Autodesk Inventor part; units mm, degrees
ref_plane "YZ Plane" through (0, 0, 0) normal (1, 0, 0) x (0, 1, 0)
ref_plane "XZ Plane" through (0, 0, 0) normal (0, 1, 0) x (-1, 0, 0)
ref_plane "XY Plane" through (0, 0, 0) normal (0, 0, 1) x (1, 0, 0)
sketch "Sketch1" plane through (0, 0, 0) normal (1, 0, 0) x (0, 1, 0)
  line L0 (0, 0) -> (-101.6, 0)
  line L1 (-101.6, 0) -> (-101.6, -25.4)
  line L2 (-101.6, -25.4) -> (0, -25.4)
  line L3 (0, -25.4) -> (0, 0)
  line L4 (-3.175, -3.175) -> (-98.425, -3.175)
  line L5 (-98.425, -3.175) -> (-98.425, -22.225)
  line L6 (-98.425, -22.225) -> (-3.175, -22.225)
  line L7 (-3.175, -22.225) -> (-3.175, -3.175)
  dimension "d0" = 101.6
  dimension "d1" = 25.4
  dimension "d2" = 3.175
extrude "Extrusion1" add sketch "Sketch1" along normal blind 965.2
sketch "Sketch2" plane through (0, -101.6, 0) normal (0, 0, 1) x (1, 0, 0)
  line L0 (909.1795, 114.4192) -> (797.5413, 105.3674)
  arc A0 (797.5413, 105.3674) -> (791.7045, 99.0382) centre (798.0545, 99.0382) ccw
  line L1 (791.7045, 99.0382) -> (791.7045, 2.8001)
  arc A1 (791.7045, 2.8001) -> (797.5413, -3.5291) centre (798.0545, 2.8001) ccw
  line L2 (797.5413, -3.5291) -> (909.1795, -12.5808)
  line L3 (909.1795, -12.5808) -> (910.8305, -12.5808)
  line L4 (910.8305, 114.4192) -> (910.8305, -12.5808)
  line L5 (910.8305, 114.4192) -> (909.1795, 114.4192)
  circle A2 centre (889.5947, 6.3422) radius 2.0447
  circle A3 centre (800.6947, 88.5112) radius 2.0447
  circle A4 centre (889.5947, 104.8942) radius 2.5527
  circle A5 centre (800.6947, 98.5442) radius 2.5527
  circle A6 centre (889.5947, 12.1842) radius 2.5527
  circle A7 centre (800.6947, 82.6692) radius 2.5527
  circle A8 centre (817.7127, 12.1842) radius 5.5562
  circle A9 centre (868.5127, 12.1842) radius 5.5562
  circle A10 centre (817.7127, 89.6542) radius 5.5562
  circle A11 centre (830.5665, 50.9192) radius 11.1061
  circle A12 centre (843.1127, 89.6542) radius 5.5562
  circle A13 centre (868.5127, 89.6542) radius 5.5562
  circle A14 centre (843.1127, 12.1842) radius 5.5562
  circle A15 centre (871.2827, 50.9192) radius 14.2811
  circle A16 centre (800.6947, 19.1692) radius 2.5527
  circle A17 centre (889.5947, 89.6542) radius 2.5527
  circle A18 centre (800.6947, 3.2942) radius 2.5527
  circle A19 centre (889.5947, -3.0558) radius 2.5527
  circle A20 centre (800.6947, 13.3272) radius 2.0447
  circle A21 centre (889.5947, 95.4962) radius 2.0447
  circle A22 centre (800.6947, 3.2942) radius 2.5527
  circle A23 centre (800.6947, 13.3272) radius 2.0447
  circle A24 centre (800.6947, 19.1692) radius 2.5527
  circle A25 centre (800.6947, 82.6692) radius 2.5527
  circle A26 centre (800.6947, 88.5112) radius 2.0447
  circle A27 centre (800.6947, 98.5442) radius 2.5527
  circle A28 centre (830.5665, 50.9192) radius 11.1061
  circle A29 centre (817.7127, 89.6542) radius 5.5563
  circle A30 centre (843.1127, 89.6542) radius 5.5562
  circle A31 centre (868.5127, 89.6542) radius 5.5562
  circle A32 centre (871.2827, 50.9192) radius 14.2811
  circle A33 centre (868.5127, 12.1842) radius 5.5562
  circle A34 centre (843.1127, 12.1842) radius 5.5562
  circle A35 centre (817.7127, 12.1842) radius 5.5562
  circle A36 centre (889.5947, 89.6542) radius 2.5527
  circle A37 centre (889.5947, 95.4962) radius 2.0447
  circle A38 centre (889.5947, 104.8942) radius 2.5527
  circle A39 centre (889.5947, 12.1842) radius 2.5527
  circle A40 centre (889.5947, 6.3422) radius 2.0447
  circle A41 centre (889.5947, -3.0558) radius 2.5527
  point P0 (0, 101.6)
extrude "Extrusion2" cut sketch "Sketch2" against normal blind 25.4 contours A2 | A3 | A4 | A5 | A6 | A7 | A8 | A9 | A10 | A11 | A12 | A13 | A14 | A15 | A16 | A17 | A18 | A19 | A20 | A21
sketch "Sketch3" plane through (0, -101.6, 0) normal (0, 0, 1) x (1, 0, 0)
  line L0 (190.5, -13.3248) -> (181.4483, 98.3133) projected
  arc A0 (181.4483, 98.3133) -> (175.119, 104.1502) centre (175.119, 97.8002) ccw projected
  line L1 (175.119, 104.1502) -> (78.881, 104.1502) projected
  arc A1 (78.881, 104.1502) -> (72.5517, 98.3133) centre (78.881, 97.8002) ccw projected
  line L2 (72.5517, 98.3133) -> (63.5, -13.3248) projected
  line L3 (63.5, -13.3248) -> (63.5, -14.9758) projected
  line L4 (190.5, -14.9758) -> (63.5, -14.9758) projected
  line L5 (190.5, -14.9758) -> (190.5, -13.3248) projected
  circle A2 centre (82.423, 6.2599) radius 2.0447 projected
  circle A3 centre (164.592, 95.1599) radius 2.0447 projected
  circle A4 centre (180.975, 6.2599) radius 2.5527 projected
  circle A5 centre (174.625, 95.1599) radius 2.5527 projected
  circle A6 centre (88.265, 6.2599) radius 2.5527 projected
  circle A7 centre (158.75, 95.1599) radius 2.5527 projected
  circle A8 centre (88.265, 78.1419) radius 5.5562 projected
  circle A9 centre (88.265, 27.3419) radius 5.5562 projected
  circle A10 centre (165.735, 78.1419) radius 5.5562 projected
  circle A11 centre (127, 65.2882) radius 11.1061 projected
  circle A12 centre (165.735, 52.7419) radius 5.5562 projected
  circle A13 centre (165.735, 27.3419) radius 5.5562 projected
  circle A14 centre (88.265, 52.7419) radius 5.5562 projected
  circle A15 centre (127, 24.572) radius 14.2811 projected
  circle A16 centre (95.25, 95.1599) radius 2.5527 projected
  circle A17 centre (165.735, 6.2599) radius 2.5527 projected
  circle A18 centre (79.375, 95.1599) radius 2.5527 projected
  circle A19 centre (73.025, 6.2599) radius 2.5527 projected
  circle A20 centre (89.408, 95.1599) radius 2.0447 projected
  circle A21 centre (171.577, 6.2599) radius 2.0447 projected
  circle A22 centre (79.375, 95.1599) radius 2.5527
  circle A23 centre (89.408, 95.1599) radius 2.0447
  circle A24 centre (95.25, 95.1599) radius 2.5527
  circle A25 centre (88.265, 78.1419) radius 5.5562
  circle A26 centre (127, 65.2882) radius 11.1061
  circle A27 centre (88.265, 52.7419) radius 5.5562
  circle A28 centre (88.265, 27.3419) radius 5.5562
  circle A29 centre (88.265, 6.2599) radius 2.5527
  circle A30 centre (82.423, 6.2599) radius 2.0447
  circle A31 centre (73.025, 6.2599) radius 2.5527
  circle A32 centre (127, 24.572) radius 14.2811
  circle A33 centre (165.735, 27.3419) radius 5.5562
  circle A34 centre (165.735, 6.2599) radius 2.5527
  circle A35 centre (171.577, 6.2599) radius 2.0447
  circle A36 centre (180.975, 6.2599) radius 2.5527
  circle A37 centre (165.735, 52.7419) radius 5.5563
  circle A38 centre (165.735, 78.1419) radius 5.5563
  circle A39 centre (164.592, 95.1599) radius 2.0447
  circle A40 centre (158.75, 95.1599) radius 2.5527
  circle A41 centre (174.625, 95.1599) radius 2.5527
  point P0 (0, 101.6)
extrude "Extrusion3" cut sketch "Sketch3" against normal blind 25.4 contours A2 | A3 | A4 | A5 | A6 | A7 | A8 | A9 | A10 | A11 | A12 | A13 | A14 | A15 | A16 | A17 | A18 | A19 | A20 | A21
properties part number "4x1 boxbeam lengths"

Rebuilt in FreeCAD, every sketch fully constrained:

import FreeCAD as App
import Part
import Sketcher
from FreeCAD import Vector
Q = App.Units.Quantity


def add_polygon(sketch, points):
    """Adds a closed chain of lines whose ends are joined by coincident constraints."""
    first, n = sketch.GeometryCount, len(points)
    for a, b in zip(points, points[1:] + points[:1]):
        sketch.addGeometry(Part.LineSegment(App.Vector(*a, 0), App.Vector(*b, 0)), False)
    for i in range(n):
        sketch.addConstraint(Sketcher.Constraint("Coincident", first + i, 2, first + (i + 1) % n, 1))

doc = App.newDocument("Part")
body = doc.addObject("PartDesign::Body", "Body")

# Sketch on YZ plane
sketch1 = doc.addObject("Sketcher::SketchObject", "Sketch")
body.addObject(sketch1)
sketch1.AttachmentSupport = (doc.YZ_Plane, [""])
sketch1.MapMode = "FlatFace"
add_polygon(sketch1, [(0, -25), (0, 0), (-102, 0), (-102, -25)])  # lines 0-3
add_polygon(sketch1, [(-98, -3), (-3, -3), (-3, -22), (-98, -22)])  # lines 4-7
sketch1.addConstraint(Sketcher.Constraint("Vertical", 0))
sketch1.addConstraint(Sketcher.Constraint("Horizontal", 1))
sketch1.addConstraint(Sketcher.Constraint("Vertical", 2))
sketch1.addConstraint(Sketcher.Constraint("Horizontal", 3))
sketch1.addConstraint(Sketcher.Constraint("Horizontal", 4))
sketch1.addConstraint(Sketcher.Constraint("Vertical", 5))
sketch1.addConstraint(Sketcher.Constraint("Horizontal", 6))
sketch1.addConstraint(Sketcher.Constraint("Vertical", 7))
sketch1.addConstraint(Sketcher.Constraint("Coincident", 0, 2, -1, 1))
sketch1.addConstraint(Sketcher.Constraint("DistanceX", 1, 2, 1, 1, Q("4 in")))
sketch1.addConstraint(Sketcher.Constraint("DistanceY", 0, 1, 0, 2, Q("1 in")))
sketch1.addConstraint(Sketcher.Constraint("DistanceX", 4, 2, -1, 1, Q("0.125 in")))
sketch1.addConstraint(Sketcher.Constraint("DistanceY", 4, 2, -1, 1, Q("0.125 in")))
sketch1.addConstraint(Sketcher.Constraint("DistanceY", 3, 2, 5, 2, Q("0.125 in")))
sketch1.addConstraint(Sketcher.Constraint("DistanceX", 2, 2, 6, 2, Q("0.125 in")))
pad1 = doc.addObject("PartDesign::Pad", "Pad")
body.addObject(pad1)
pad1.Profile = sketch1
pad1.Length = Q("38 in")

# Sketch on XY plane
sketch2 = doc.addObject("Sketcher::SketchObject", "Sketch001")
body.addObject(sketch2)
sketch2.AttachmentSupport = (doc.XY_Plane, [""])
sketch2.MapMode = "FlatFace"
sketch2.addGeometry(Part.Circle(Vector(889.6, -95.3, 0), Vector(0, 0, 1), 2), False)
sketch2.addGeometry(Part.Circle(Vector(800.7, -13.1, 0), Vector(0, 0, 1), 2), False)
sketch2.addGeometry(Part.Circle(Vector(889.6, 3.3, 0), Vector(0, 0, 1), 2.6), False)
sketch2.addGeometry(Part.Circle(Vector(800.7, -3.1, 0), Vector(0, 0, 1), 2.6), False)
sketch2.addGeometry(Part.Circle(Vector(889.6, -89.4, 0), Vector(0, 0, 1), 2.6), False)
sketch2.addGeometry(Part.Circle(Vector(800.7, -18.9, 0), Vector(0, 0, 1), 2.6), False)
sketch2.addGeometry(Part.Circle(Vector(817.7, -89.4, 0), Vector(0, 0, 1), 5.6), False)
sketch2.addGeometry(Part.Circle(Vector(868.5, -89.4, 0), Vector(0, 0, 1), 5.6), False)
sketch2.addGeometry(Part.Circle(Vector(817.7, -11.9, 0), Vector(0, 0, 1), 5.6), False)
sketch2.addGeometry(Part.Circle(Vector(830.6, -50.7, 0), Vector(0, 0, 1), 11.1), False)
sketch2.addGeometry(Part.Circle(Vector(843.1, -11.9, 0), Vector(0, 0, 1), 5.6), False)
sketch2.addGeometry(Part.Circle(Vector(868.5, -11.9, 0), Vector(0, 0, 1), 5.6), False)
sketch2.addGeometry(Part.Circle(Vector(843.1, -89.4, 0), Vector(0, 0, 1), 5.6), False)
sketch2.addGeometry(Part.Circle(Vector(871.3, -50.7, 0), Vector(0, 0, 1), 14.3), False)
sketch2.addGeometry(Part.Circle(Vector(800.7, -82.4, 0), Vector(0, 0, 1), 2.6), False)
sketch2.addGeometry(Part.Circle(Vector(889.6, -11.9, 0), Vector(0, 0, 1), 2.6), False)
sketch2.addGeometry(Part.Circle(Vector(800.7, -98.3, 0), Vector(0, 0, 1), 2.6), False)
sketch2.addGeometry(Part.Circle(Vector(889.6, -104.7, 0), Vector(0, 0, 1), 2.6), False)
sketch2.addGeometry(Part.Circle(Vector(800.7, -88.3, 0), Vector(0, 0, 1), 2), False)
sketch2.addGeometry(Part.Circle(Vector(889.6, -6.1, 0), Vector(0, 0, 1), 2), False)
sketch2.addConstraint(Sketcher.Constraint("Equal", 0, 1))
sketch2.addConstraint(Sketcher.Constraint("Equal", 2, 3))
sketch2.addConstraint(Sketcher.Constraint("Equal", 3, 4))
sketch2.addConstraint(Sketcher.Constraint("Equal", 4, 5))
sketch2.addConstraint(Sketcher.Constraint("Equal", 6, 7))
sketch2.addConstraint(Sketcher.Constraint("Equal", 7, 8))
sketch2.addConstraint(Sketcher.Constraint("Equal", 8, 10))
sketch2.addConstraint(Sketcher.Constraint("Equal", 10, 11))
sketch2.addConstraint(Sketcher.Constraint("Equal", 11, 12))
sketch2.addConstraint(Sketcher.Constraint("Equal", 5, 14))
sketch2.addConstraint(Sketcher.Constraint("Equal", 14, 15))
sketch2.addConstraint(Sketcher.Constraint("Equal", 15, 16))
sketch2.addConstraint(Sketcher.Constraint("Equal", 16, 17))
sketch2.addConstraint(Sketcher.Constraint("Equal", 1, 18))
sketch2.addConstraint(Sketcher.Constraint("Equal", 18, 19))
sketch2.addConstraint(Sketcher.Constraint("Horizontal", 4, 3, 6, 3))
sketch2.addConstraint(Sketcher.Constraint("Horizontal", 6, 3, 7, 3))
sketch2.addConstraint(Sketcher.Constraint("Horizontal", 8, 3, 10, 3))
sketch2.addConstraint(Sketcher.Constraint("Horizontal", 10, 3, 11, 3))
sketch2.addConstraint(Sketcher.Constraint("Horizontal", 7, 3, 12, 3))
sketch2.addConstraint(Sketcher.Constraint("Horizontal", 9, 3, 13, 3))
sketch2.addConstraint(Sketcher.Constraint("Horizontal", 11, 3, 15, 3))
sketch2.addConstraint(Sketcher.Constraint("Vertical", 0, 3, 2, 3))
sketch2.addConstraint(Sketcher.Constraint("Vertical", 1, 3, 3, 3))
sketch2.addConstraint(Sketcher.Constraint("Vertical", 2, 3, 4, 3))
sketch2.addConstraint(Sketcher.Constraint("Vertical", 3, 3, 5, 3))
sketch2.addConstraint(Sketcher.Constraint("Vertical", 6, 3, 8, 3))
sketch2.addConstraint(Sketcher.Constraint("Vertical", 7, 3, 11, 3))
sketch2.addConstraint(Sketcher.Constraint("Vertical", 10, 3, 12, 3))
sketch2.addConstraint(Sketcher.Constraint("Vertical", 5, 3, 14, 3))
sketch2.addConstraint(Sketcher.Constraint("Vertical", 4, 3, 15, 3))
sketch2.addConstraint(Sketcher.Constraint("Vertical", 14, 3, 16, 3))
sketch2.addConstraint(Sketcher.Constraint("Vertical", 15, 3, 17, 3))
sketch2.addConstraint(Sketcher.Constraint("Vertical", 16, 3, 18, 3))
sketch2.addConstraint(Sketcher.Constraint("Vertical", 17, 3, 19, 3))
sketch2.addConstraint(Sketcher.Constraint("Diameter", 0, Q("0.161 in")))
sketch2.addConstraint(Sketcher.Constraint("Diameter", 2, Q("0.201 in")))
sketch2.addConstraint(Sketcher.Constraint("Diameter", 6, Q("0.4375 in")))
sketch2.addConstraint(Sketcher.Constraint("DistanceX", 6, 3, 7, 3, Q("2 in")))
sketch2.addConstraint(Sketcher.Constraint("DistanceX", 8, 3, 10, 3, Q("1 in")))
sketch2.addConstraint(Sketcher.Constraint("Diameter", 9, Q("0.8745 in")))
sketch2.addConstraint(Sketcher.Constraint("Diameter", 13, Q("1.1245 in")))
sketch2.addConstraint(Sketcher.Constraint("DistanceX", 1, 3, 0, 3, Q("3.5 in")))
sketch2.addConstraint(Sketcher.Constraint("DistanceY", 4, 3, 3, 3, Q("3.4 in")))
sketch2.addConstraint(Sketcher.Constraint("DistanceY", 8, 3, 2, 3, Q("0.6 in")))
sketch2.addConstraint(Sketcher.Constraint("DistanceY", 14, 3, 5, 3, Q("2.5 in")))
sketch2.addConstraint(Sketcher.Constraint("DistanceY", 17, 3, 4, 3, Q("0.6 in")))
sketch2.addConstraint(Sketcher.Constraint("DistanceY", 0, 3, 2, 3, Q("3.88 in")))
sketch2.addConstraint(Sketcher.Constraint("DistanceY", 3, 3, 2, 3, Q("0.25 in")))
sketch2.addConstraint(Sketcher.Constraint("DistanceY", 5, 3, 1, 3, Q("0.23 in")))
sketch2.addConstraint(Sketcher.Constraint("DistanceX", 6, 3, 4, 3, Q("2.83 in")))
sketch2.addConstraint(Sketcher.Constraint("DistanceY", 9, 3, 5, 3, Q("1.25 in")))
sketch2.addConstraint(Sketcher.Constraint("DistanceY", 16, 3, 6, 3, Q("0.35 in")))
sketch2.addConstraint(Sketcher.Constraint("DistanceY", 18, 3, 14, 3, Q("0.23 in")))
sketch2.addConstraint(Sketcher.Constraint("DistanceY", 15, 3, 19, 3, Q("0.23 in")))
sketch2.addConstraint(Sketcher.Constraint("DistanceY", 0, 3, 1, 3, Q("3.235 in")))
sketch2.addConstraint(Sketcher.Constraint("DistanceX", 9, 3, 13, 3, Q("1.603 in")))
sketch2.addConstraint(Sketcher.Constraint("DistanceY", 0, 3, -1, 1, Q("3.7503 in")))
sketch2.addConstraint(Sketcher.Constraint("DistanceX", -1, 1, 0, 3, Q("889.5947 mm")))
sketch2.addConstraint(Sketcher.Constraint("DistanceX", -1, 1, 9, 3, Q("830.5665 mm")))
pocket1 = doc.addObject("PartDesign::Pocket", "Pocket")
body.addObject(pocket1)
pocket1.Profile = sketch2
pocket1.Length = Q("1 in")

# Sketch on XY plane
sketch3 = doc.addObject("Sketcher::SketchObject", "Sketch002")
body.addObject(sketch3)
sketch3.AttachmentSupport = (doc.XY_Plane, [""])
sketch3.MapMode = "FlatFace"
sketch3.addGeometry(Part.Circle(Vector(82.4, -95.3, 0), Vector(0, 0, 1), 2), False)
sketch3.addGeometry(Part.Circle(Vector(164.6, -6.4, 0), Vector(0, 0, 1), 2), False)
sketch3.addGeometry(Part.Circle(Vector(181, -95.3, 0), Vector(0, 0, 1), 2.6), False)
sketch3.addGeometry(Part.Circle(Vector(174.6, -6.4, 0), Vector(0, 0, 1), 2.6), False)
sketch3.addGeometry(Part.Circle(Vector(88.3, -95.3, 0), Vector(0, 0, 1), 2.6), False)
sketch3.addGeometry(Part.Circle(Vector(158.8, -6.4, 0), Vector(0, 0, 1), 2.6), False)
sketch3.addGeometry(Part.Circle(Vector(88.3, -23.5, 0), Vector(0, 0, 1), 5.6), False)
sketch3.addGeometry(Part.Circle(Vector(88.3, -74.3, 0), Vector(0, 0, 1), 5.6), False)
sketch3.addGeometry(Part.Circle(Vector(165.7, -23.5, 0), Vector(0, 0, 1), 5.6), False)
sketch3.addGeometry(Part.Circle(Vector(127, -36.3, 0), Vector(0, 0, 1), 11.1), False)
sketch3.addGeometry(Part.Circle(Vector(165.7, -48.9, 0), Vector(0, 0, 1), 5.6), False)
sketch3.addGeometry(Part.Circle(Vector(165.7, -74.3, 0), Vector(0, 0, 1), 5.6), False)
sketch3.addGeometry(Part.Circle(Vector(88.3, -48.9, 0), Vector(0, 0, 1), 5.6), False)
sketch3.addGeometry(Part.Circle(Vector(127, -77, 0), Vector(0, 0, 1), 14.3), False)
sketch3.addGeometry(Part.Circle(Vector(95.2, -6.4, 0), Vector(0, 0, 1), 2.6), False)
sketch3.addGeometry(Part.Circle(Vector(165.7, -95.3, 0), Vector(0, 0, 1), 2.6), False)
sketch3.addGeometry(Part.Circle(Vector(79.4, -6.4, 0), Vector(0, 0, 1), 2.6), False)
sketch3.addGeometry(Part.Circle(Vector(73, -95.3, 0), Vector(0, 0, 1), 2.6), False)
sketch3.addGeometry(Part.Circle(Vector(89.4, -6.4, 0), Vector(0, 0, 1), 2), False)
sketch3.addGeometry(Part.Circle(Vector(171.6, -95.3, 0), Vector(0, 0, 1), 2), False)
sketch3.addConstraint(Sketcher.Constraint("Equal", 0, 1))
sketch3.addConstraint(Sketcher.Constraint("Equal", 2, 3))
sketch3.addConstraint(Sketcher.Constraint("Equal", 3, 4))
sketch3.addConstraint(Sketcher.Constraint("Equal", 4, 5))
sketch3.addConstraint(Sketcher.Constraint("Equal", 6, 7))
sketch3.addConstraint(Sketcher.Constraint("Equal", 7, 8))
sketch3.addConstraint(Sketcher.Constraint("Equal", 8, 10))
sketch3.addConstraint(Sketcher.Constraint("Equal", 10, 11))
sketch3.addConstraint(Sketcher.Constraint("Equal", 11, 12))
sketch3.addConstraint(Sketcher.Constraint("Equal", 5, 14))
sketch3.addConstraint(Sketcher.Constraint("Equal", 14, 15))
sketch3.addConstraint(Sketcher.Constraint("Equal", 15, 16))
sketch3.addConstraint(Sketcher.Constraint("Equal", 16, 17))
sketch3.addConstraint(Sketcher.Constraint("Equal", 1, 18))
sketch3.addConstraint(Sketcher.Constraint("Equal", 18, 19))
sketch3.addConstraint(Sketcher.Constraint("Horizontal", 0, 3, 2, 3))
sketch3.addConstraint(Sketcher.Constraint("Horizontal", 1, 3, 3, 3))
sketch3.addConstraint(Sketcher.Constraint("Horizontal", 2, 3, 4, 3))
sketch3.addConstraint(Sketcher.Constraint("Horizontal", 3, 3, 5, 3))
sketch3.addConstraint(Sketcher.Constraint("Horizontal", 6, 3, 8, 3))
sketch3.addConstraint(Sketcher.Constraint("Horizontal", 7, 3, 11, 3))
sketch3.addConstraint(Sketcher.Constraint("Horizontal", 10, 3, 12, 3))
sketch3.addConstraint(Sketcher.Constraint("Horizontal", 5, 3, 14, 3))
sketch3.addConstraint(Sketcher.Constraint("Horizontal", 4, 3, 15, 3))
sketch3.addConstraint(Sketcher.Constraint("Horizontal", 14, 3, 16, 3))
sketch3.addConstraint(Sketcher.Constraint("Horizontal", 15, 3, 17, 3))
sketch3.addConstraint(Sketcher.Constraint("Horizontal", 16, 3, 18, 3))
sketch3.addConstraint(Sketcher.Constraint("Horizontal", 17, 3, 19, 3))
sketch3.addConstraint(Sketcher.Constraint("Vertical", 4, 3, 6, 3))
sketch3.addConstraint(Sketcher.Constraint("Vertical", 6, 3, 7, 3))
sketch3.addConstraint(Sketcher.Constraint("Vertical", 8, 3, 10, 3))
sketch3.addConstraint(Sketcher.Constraint("Vertical", 10, 3, 11, 3))
sketch3.addConstraint(Sketcher.Constraint("Vertical", 7, 3, 12, 3))
sketch3.addConstraint(Sketcher.Constraint("Vertical", 9, 3, 13, 3))
sketch3.addConstraint(Sketcher.Constraint("Vertical", 11, 3, 15, 3))
sketch3.addConstraint(Sketcher.Constraint("Diameter", 0, Q("0.161 in")))
sketch3.addConstraint(Sketcher.Constraint("Diameter", 2, Q("0.201 in")))
sketch3.addConstraint(Sketcher.Constraint("Diameter", 6, Q("0.4375 in")))
sketch3.addConstraint(Sketcher.Constraint("DistanceX", -1, 1, 9, 3, Q("5 in")))
sketch3.addConstraint(Sketcher.Constraint("DistanceY", 7, 3, 6, 3, Q("2 in")))
sketch3.addConstraint(Sketcher.Constraint("DistanceY", 10, 3, 8, 3, Q("1 in")))
sketch3.addConstraint(Sketcher.Constraint("Diameter", 9, Q("0.8745 in")))
sketch3.addConstraint(Sketcher.Constraint("Diameter", 13, Q("1.1245 in")))
sketch3.addConstraint(Sketcher.Constraint("DistanceY", 0, 3, 1, 3, Q("3.5 in")))
sketch3.addConstraint(Sketcher.Constraint("DistanceX", 4, 3, 3, 3, Q("3.4 in")))
sketch3.addConstraint(Sketcher.Constraint("DistanceX", 8, 3, 2, 3, Q("0.6 in")))
sketch3.addConstraint(Sketcher.Constraint("DistanceX", 14, 3, 5, 3, Q("2.5 in")))
sketch3.addConstraint(Sketcher.Constraint("DistanceX", 17, 3, 4, 3, Q("0.6 in")))
sketch3.addConstraint(Sketcher.Constraint("DistanceX", -1, 1, 1, 3, Q("6.48 in")))
sketch3.addConstraint(Sketcher.Constraint("DistanceX", -1, 1, 5, 3, Q("6.25 in")))
sketch3.addConstraint(Sketcher.Constraint("DistanceX", -1, 1, 18, 3, Q("3.52 in")))
sketch3.addConstraint(Sketcher.Constraint("DistanceX", 0, 3, 2, 3, Q("3.88 in")))
sketch3.addConstraint(Sketcher.Constraint("DistanceX", 3, 3, 2, 3, Q("0.25 in")))
sketch3.addConstraint(Sketcher.Constraint("DistanceY", 4, 3, 6, 3, Q("2.83 in")))
sketch3.addConstraint(Sketcher.Constraint("DistanceX", 16, 3, 6, 3, Q("0.35 in")))
sketch3.addConstraint(Sketcher.Constraint("DistanceX", 15, 3, 19, 3, Q("0.23 in")))
sketch3.addConstraint(Sketcher.Constraint("DistanceX", -1, 1, 0, 3, Q("3.245 in")))
sketch3.addConstraint(Sketcher.Constraint("DistanceY", 13, 3, 9, 3, Q("1.603 in")))
sketch3.addConstraint(Sketcher.Constraint("DistanceY", 9, 3, -1, 1, Q("1.4296 in")))
sketch3.addConstraint(Sketcher.Constraint("DistanceY", 0, 3, -1, 1, Q("95.34 mm")))
pocket2 = doc.addObject("PartDesign::Pocket", "Pocket001")
body.addObject(pocket2)
pocket2.Profile = sketch3
pocket2.Length = Q("1 in")

doc.recompute()
